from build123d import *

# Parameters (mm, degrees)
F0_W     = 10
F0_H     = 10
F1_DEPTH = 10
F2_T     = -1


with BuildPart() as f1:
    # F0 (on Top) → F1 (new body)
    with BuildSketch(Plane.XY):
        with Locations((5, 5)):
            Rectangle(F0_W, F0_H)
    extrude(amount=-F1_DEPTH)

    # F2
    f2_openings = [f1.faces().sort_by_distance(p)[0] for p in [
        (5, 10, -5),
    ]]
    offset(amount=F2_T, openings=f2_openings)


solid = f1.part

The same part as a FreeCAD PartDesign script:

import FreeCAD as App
import Part
import Sketcher
Q = App.Units.Quantity


def faces_at(feature, points):
    """Names of the faces that lie closest to the given points."""
    faces = feature.Shape.Faces
    near = lambda p: min(range(len(faces)), key=lambda i: faces[i].distToShape(Part.Vertex(*p))[0])
    return sorted({f"Face{near(p) + 1}" for p in points})


def add_polygon(sketch, points):
    """Adds a closed chain of lines whose ends are joined by coincident constraints."""
    first, n = sketch.GeometryCount, len(points)
    for a, b in zip(points, points[1:] + points[:1]):
        sketch.addGeometry(Part.LineSegment(App.Vector(*a, 0), App.Vector(*b, 0)), False)
    for i in range(n):
        sketch.addConstraint(Sketcher.Constraint("Coincident", first + i, 2, first + (i + 1) % n, 1))

doc = App.newDocument("Part")
params = doc.addObject("Spreadsheet::Sheet", "Params")
for row, (alias, value) in enumerate([
    ("sketch1_width", "10 mm"),
    ("pad1_length", "10 mm"),
    ("thickness_wall", "1 mm"),
], start=1):
    params.set(f"A{row}", alias)
    params.set(f"B{row}", "=" + value)
    params.setAlias(f"B{row}", alias)

body = doc.addObject("PartDesign::Body", "Body")

# Sketch on XY plane
sketch1 = body.newObject("Sketcher::SketchObject", "Sketch")
sketch1.AttachmentSupport = (doc.getObject("XY_Plane"), [""])
sketch1.MapMode = "FlatFace"
add_polygon(sketch1, [(0, 10), (0, 0), (10, 0), (10, 10)])  # lines 0-3
sketch1.addConstraint([
    Sketcher.Constraint("Vertical", 0),
    Sketcher.Constraint("Horizontal", 1),
    Sketcher.Constraint("Vertical", 2),
    Sketcher.Constraint("Horizontal", 3),
    Sketcher.Constraint("Coincident", 0, 2, -1, 1),
    Sketcher.Constraint("Equal", 3, 0),
    Sketcher.Constraint("DistanceX", 1, 1, 1, 2, Q("10 mm")),
])
sketch1.setExpression("Constraints[10]", "Params.sketch1_width")
pad1 = body.newObject("PartDesign::Pad", "Pad")
pad1.Profile = sketch1
pad1.setExpression("Length", "Params.pad1_length")
pad1.Reversed = True
doc.recompute()

thickness = body.newObject("PartDesign::Thickness", "Thickness")
thickness.Base = (pad1, faces_at(pad1, [(5, 10, -5)]))
thickness.setExpression("Value", "Params.thickness_wall")
thickness.Reversed = True
thickness.Join = "Arc"

doc.recompute()
